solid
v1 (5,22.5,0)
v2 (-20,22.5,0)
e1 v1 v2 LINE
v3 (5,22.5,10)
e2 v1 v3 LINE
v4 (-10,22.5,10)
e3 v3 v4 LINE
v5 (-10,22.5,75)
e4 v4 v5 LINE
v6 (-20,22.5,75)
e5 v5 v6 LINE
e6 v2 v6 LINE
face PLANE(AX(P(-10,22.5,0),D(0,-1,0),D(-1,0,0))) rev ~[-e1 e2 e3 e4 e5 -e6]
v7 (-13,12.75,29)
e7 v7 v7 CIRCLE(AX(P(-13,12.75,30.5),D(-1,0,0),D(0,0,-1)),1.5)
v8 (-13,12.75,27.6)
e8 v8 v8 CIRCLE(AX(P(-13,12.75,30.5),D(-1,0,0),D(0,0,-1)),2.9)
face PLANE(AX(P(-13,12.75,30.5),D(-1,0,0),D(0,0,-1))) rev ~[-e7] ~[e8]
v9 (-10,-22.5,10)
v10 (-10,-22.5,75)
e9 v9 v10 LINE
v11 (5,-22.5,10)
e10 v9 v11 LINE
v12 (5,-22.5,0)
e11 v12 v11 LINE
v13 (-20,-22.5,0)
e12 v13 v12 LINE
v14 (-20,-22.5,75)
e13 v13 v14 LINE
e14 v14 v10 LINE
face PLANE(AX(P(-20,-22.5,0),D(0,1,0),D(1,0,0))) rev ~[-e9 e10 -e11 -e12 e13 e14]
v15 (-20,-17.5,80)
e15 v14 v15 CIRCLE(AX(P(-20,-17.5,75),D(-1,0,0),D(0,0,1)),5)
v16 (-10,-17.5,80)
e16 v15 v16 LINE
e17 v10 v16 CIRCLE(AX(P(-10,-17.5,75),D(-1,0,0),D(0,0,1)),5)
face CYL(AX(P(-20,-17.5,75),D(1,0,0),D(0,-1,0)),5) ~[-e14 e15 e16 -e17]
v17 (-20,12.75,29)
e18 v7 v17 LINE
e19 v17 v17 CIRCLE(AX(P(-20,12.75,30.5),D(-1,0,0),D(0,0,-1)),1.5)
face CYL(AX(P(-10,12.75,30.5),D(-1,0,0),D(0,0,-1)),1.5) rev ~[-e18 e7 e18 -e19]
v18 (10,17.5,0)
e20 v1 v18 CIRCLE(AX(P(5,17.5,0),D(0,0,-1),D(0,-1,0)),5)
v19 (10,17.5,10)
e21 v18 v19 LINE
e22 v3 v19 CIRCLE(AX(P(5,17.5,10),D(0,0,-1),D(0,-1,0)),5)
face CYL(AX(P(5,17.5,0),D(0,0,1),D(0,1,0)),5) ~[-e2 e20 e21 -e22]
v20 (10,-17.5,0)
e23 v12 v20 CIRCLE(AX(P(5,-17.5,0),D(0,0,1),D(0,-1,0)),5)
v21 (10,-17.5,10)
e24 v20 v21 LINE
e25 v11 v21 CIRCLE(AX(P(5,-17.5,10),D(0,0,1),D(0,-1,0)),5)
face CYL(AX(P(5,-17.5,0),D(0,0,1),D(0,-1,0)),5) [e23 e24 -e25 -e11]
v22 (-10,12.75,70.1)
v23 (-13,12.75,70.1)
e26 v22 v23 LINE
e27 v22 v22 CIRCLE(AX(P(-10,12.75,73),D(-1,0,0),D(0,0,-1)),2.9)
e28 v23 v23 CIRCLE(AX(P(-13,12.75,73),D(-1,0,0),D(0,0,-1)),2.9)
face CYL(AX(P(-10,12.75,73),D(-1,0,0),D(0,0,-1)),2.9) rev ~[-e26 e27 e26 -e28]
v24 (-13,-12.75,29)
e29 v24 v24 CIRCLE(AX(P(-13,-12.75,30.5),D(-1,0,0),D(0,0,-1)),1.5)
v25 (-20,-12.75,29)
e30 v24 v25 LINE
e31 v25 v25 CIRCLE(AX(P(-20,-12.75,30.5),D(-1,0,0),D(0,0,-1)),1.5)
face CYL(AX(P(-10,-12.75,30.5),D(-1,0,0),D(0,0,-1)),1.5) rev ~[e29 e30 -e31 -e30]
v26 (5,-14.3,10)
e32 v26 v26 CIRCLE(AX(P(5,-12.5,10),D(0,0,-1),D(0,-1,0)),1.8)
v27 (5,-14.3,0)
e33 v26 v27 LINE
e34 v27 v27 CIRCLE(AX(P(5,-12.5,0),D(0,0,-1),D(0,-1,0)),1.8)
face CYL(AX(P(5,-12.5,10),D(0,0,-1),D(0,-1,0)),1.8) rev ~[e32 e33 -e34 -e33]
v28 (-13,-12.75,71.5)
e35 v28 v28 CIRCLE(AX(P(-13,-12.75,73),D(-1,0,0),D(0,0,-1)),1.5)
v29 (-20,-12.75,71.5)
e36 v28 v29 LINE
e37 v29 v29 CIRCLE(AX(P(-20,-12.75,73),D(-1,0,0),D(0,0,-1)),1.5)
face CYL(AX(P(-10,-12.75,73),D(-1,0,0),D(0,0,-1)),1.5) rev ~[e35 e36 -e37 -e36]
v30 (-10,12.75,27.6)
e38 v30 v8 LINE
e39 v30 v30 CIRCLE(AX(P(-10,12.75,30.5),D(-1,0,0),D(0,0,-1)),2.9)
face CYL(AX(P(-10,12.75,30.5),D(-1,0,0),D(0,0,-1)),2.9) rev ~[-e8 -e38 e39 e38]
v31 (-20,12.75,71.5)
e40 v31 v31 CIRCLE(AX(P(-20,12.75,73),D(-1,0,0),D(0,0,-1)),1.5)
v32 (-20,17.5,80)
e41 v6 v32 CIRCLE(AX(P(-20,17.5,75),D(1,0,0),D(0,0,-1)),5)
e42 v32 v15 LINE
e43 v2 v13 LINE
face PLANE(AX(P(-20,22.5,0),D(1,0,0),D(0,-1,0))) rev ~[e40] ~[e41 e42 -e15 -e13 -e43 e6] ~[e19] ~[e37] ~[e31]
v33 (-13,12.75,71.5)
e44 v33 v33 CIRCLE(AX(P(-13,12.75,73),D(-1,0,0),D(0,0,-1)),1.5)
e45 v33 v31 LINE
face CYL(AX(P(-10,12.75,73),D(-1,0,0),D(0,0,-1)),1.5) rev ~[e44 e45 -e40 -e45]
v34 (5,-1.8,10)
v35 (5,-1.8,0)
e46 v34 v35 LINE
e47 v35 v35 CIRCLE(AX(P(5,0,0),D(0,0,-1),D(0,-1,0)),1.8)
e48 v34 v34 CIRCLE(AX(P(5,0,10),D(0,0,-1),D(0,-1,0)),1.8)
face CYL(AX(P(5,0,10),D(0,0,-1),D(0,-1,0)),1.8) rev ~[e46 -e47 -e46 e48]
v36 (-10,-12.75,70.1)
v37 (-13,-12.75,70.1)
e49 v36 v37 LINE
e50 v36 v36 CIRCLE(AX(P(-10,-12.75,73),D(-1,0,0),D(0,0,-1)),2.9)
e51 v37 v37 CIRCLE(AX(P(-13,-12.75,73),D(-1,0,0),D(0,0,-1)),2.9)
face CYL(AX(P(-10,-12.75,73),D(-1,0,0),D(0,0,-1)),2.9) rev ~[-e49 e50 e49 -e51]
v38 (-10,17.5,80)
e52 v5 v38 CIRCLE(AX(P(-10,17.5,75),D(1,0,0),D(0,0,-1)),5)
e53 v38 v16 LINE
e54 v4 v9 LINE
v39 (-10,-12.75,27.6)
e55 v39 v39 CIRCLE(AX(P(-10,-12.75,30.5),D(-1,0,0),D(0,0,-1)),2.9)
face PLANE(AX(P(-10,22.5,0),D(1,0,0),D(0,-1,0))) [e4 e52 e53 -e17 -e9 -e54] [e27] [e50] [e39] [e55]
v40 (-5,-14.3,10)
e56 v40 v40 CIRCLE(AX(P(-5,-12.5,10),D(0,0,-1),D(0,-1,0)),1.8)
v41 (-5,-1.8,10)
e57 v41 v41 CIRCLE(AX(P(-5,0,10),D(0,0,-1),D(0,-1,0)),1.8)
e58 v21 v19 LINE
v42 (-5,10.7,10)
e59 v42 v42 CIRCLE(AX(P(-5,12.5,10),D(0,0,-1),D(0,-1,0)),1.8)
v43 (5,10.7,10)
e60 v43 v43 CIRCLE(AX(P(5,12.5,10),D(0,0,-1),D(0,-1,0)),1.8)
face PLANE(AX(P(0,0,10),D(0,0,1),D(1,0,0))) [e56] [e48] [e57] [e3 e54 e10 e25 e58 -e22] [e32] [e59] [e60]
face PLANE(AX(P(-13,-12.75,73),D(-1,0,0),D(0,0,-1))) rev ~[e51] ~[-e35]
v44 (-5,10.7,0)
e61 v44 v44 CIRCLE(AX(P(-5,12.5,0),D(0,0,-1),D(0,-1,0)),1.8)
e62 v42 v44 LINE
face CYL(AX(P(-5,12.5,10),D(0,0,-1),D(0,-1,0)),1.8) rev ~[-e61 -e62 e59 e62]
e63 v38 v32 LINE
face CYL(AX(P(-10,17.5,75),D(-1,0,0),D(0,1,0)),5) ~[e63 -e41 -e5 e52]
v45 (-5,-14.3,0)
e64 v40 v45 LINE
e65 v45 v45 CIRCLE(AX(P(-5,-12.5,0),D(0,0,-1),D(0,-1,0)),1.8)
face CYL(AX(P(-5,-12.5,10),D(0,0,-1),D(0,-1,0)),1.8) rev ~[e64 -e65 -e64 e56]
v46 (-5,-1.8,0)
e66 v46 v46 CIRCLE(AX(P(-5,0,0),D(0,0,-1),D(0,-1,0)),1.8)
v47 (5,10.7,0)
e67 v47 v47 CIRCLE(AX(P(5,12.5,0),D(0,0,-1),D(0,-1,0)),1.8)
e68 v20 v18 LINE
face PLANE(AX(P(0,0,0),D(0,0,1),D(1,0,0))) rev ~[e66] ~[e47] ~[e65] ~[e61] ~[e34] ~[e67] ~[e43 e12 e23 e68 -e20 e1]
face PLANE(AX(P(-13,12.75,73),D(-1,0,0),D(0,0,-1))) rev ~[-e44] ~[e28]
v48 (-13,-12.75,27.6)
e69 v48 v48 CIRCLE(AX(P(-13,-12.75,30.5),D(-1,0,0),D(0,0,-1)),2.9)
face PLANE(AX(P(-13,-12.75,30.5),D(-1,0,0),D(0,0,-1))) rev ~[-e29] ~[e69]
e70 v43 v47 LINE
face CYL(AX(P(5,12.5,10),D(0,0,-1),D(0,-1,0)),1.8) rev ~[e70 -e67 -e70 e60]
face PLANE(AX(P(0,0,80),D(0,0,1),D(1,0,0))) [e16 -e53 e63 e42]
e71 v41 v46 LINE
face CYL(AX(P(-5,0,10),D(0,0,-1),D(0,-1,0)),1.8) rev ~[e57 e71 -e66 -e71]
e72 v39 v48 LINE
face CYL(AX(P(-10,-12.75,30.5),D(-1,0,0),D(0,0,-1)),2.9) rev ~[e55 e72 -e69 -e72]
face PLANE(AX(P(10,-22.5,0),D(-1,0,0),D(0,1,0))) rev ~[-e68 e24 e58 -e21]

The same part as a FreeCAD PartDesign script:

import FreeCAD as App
import Part
import Sketcher

V = App.Vector


def edges_at(feature, points):
    """Names of the edges that pass closest to the given points."""
    edges = feature.Shape.Edges
    near = lambda p: min(range(len(edges)), key=lambda i: edges[i].distToShape(Part.Vertex(*p))[0])
    return sorted({f"Edge{near(p) + 1}" for p in points})


def add_polygon(sketch, points):
    """Adds a closed chain of lines whose ends are joined by coincident constraints."""
    first, n = sketch.GeometryCount, len(points)
    for a, b in zip(points, points[1:] + points[:1]):
        sketch.addGeometry(Part.LineSegment(App.Vector(*a, 0), App.Vector(*b, 0)), False)
    for i in range(n):
        sketch.addConstraint(Sketcher.Constraint("Coincident", first + i, 2, first + (i + 1) % n, 1))

doc = App.newDocument("Part")
body = doc.addObject("PartDesign::Body", "Body")

# Sketch on XY plane
sketch1 = body.newObject("Sketcher::SketchObject", "Sketch")
sketch1.AttachmentSupport = (doc.getObject("XY_Plane"), [""])
sketch1.MapMode = "FlatFace"
add_polygon(sketch1, [(-10, 22), (-10, -22), (10, -22), (10, 22)])  # lines 0-3
sketch1.addConstraint([
    Sketcher.Constraint("Vertical", 0),
    Sketcher.Constraint("Horizontal", 1),
    Sketcher.Constraint("Vertical", 2),
    Sketcher.Constraint("Horizontal", 3),
    Sketcher.Constraint("Symmetric", 0, 2, 2, 2, -1, 1),
    Sketcher.Constraint("DistanceX", 1, 1, 1, 2, 20.0),
    Sketcher.Constraint("DistanceY", 0, 2, 0, 1, 45.0),
])
pad1 = body.newObject("PartDesign::Pad", "Pad")
pad1.Profile = sketch1
pad1.Length = 10

# Sketch on XY plane
sketch2 = body.newObject("Sketcher::SketchObject", "Sketch001")
sketch2.AttachmentSupport = (doc.getObject("XY_Plane"), [""])
sketch2.MapMode = "FlatFace"
sketch2.AttachmentOffset = App.Placement(V(0, 0, 10), App.Rotation())
sketch2.addGeometry([
    Part.Circle(V(-5, 12.5, 0), V(0, 0, 1), 1.8),  # 0
    Part.Circle(V(5, 12.5, 0), V(0, 0, 1), 1.8),  # 1
    Part.Circle(V(5, -12.5, 0), V(0, 0, 1), 1.8),  # 2
    Part.Circle(V(-5, -12.5, 0), V(0, 0, 1), 1.8),  # 3
    Part.Circle(V(-5, 0, 0), V(0, 0, 1), 1.8),  # 4
    Part.Circle(V(5, 0, 0), V(0, 0, 1), 1.8),  # 5
], False)
sketch2.addConstraint([
    Sketcher.Constraint("Equal", 0, 1),
    Sketcher.Constraint("Equal", 1, 2),
    Sketcher.Constraint("Equal", 2, 3),
    Sketcher.Constraint("Equal", 3, 4),
    Sketcher.Constraint("Equal", 4, 5),
    Sketcher.Constraint("Symmetric", 0, 3, 2, 3, -1, 1),
    Sketcher.Constraint("Symmetric", 1, 3, 3, 3, -1, 1),
    Sketcher.Constraint("Symmetric", 4, 3, 5, 3, -1, 1),
    Sketcher.Constraint("Symmetric", 0, 3, 1, 3, -2),
    Sketcher.Constraint("PointOnObject", 4, 3, -1),
    Sketcher.Constraint("Vertical", 3, 3, 4, 3),
    Sketcher.Constraint("Diameter", 0, 3.6),
    Sketcher.Constraint("DistanceX", 0, 3, -1, 1, 5.0),
    Sketcher.Constraint("DistanceY", 2, 3, 1, 3, 25.0),
])
doc.recompute()
hole = body.newObject("PartDesign::Hole", "Hole")
hole.Profile = sketch2
hole.ThreadType = "None"
hole.Diameter = 3.6
hole.DepthType = "ThroughAll"

# Sketch on XY plane
sketch3 = body.newObject("Sketcher::SketchObject", "Sketch002")
sketch3.AttachmentSupport = (doc.getObject("XY_Plane"), [""])
sketch3.MapMode = "FlatFace"
add_polygon(sketch3, [(-10, -22), (-10, 22), (-20, 22), (-20, -22)])  # lines 0-3
sketch3.addConstraint([
    Sketcher.Constraint("Vertical", 0),
    Sketcher.Constraint("Horizontal", 1),
    Sketcher.Constraint("Vertical", 2),
    Sketcher.Constraint("Horizontal", 3),
    Sketcher.Constraint("DistanceX", 1, 2, 1, 1, 10.0),
    Sketcher.Constraint("DistanceX", 0, 2, -1, 1, 10.0),
    Sketcher.Constraint("DistanceY", 0, 1, 0, 2, 45.0),
    Sketcher.Constraint("DistanceY", -1, 1, 0, 2, 22.5),
])
pad2 = body.newObject("PartDesign::Pad", "Pad001")
pad2.Profile = sketch3
pad2.Length = 80

# Sketch on YZ plane
sketch4 = body.newObject("Sketcher::SketchObject", "Sketch003")
sketch4.AttachmentSupport = (doc.getObject("YZ_Plane"), [""])
sketch4.MapMode = "FlatFace"
sketch4.AttachmentOffset = App.Placement(V(0, 0, -10), App.Rotation())
sketch4.addGeometry([
    Part.Circle(V(12.8, 73, 0), V(0, 0, 1), 1.5),
    Part.Circle(V(-12.8, 73, 0), V(0, 0, 1), 1.5),
    Part.Circle(V(12.8, 30.5, 0), V(0, 0, 1), 1.5),
    Part.Circle(V(-12.8, 30.5, 0), V(0, 0, 1), 1.5),
], False)
sketch4.addConstraint([
    Sketcher.Constraint("Equal", 0, 1),
    Sketcher.Constraint("Equal", 1, 2),
    Sketcher.Constraint("Equal", 2, 3),
    Sketcher.Constraint("Symmetric", 0, 3, 1, 3, -2),
    Sketcher.Constraint("Symmetric", 2, 3, 3, 3, -2),
    Sketcher.Constraint("Vertical", 0, 3, 2, 3),
    Sketcher.Constraint("Diameter", 0, 3.0),
    Sketcher.Constraint("DistanceY", -1, 1, 0, 3, 73.0),
    Sketcher.Constraint("DistanceY", -1, 1, 2, 3, 30.5),
    Sketcher.Constraint("DistanceX", 1, 3, 0, 3, 25.5),
])
doc.recompute()
hole2 = body.newObject("PartDesign::Hole", "Hole001")
hole2.Profile = sketch4
hole2.ThreadType = "None"
hole2.Diameter = 3
hole2.DepthType = "ThroughAll"

# Sketch on YZ plane
sketch5 = body.newObject("Sketcher::SketchObject", "Sketch004")
sketch5.AttachmentSupport = (doc.getObject("YZ_Plane"), [""])
sketch5.MapMode = "FlatFace"
sketch5.AttachmentOffset = App.Placement(V(0, 0, -10), App.Rotation())
sketch5.addGeometry([
    Part.Circle(V(12.8, 73, 0), V(0, 0, 1), 2.9),
    Part.Circle(V(12.8, 30.5, 0), V(0, 0, 1), 2.9),
    Part.Circle(V(-12.8, 30.5, 0), V(0, 0, 1), 2.9),
    Part.Circle(V(-12.8, 73, 0), V(0, 0, 1), 2.9),
], False)
sketch5.addConstraint([
    Sketcher.Constraint("Equal", 0, 1),
    Sketcher.Constraint("Equal", 1, 2),
    Sketcher.Constraint("Equal", 2, 3),
    Sketcher.Constraint("Symmetric", 1, 3, 2, 3, -2),
    Sketcher.Constraint("Symmetric", 0, 3, 3, 3, -2),
    Sketcher.Constraint("Vertical", 0, 3, 1, 3),
    Sketcher.Constraint("Diameter", 0, 5.8),
    Sketcher.Constraint("DistanceY", -1, 1, 0, 3, 73.0),
    Sketcher.Constraint("DistanceY", -1, 1, 1, 3, 30.5),
    Sketcher.Constraint("DistanceX", 2, 3, 1, 3, 25.5),
])
doc.recompute()
hole3 = body.newObject("PartDesign::Hole", "Hole002")
hole3.Profile = sketch5
hole3.ThreadType = "None"
hole3.Diameter = 5.8
hole3.DepthType = "Dimension"
hole3.Depth = 3
hole3.DrillPoint = "Flat"
doc.recompute()

fillet = body.newObject("PartDesign::Fillet", "Fillet")
fillet.Base = (hole3, edges_at(hole3, [
    (-15, 22.5, 80),
    (-15, -22.5, 80),
    (10, 22.5, 5),
    (10, -22.5, 5),
]))
fillet.Radius = 5

doc.recompute()
